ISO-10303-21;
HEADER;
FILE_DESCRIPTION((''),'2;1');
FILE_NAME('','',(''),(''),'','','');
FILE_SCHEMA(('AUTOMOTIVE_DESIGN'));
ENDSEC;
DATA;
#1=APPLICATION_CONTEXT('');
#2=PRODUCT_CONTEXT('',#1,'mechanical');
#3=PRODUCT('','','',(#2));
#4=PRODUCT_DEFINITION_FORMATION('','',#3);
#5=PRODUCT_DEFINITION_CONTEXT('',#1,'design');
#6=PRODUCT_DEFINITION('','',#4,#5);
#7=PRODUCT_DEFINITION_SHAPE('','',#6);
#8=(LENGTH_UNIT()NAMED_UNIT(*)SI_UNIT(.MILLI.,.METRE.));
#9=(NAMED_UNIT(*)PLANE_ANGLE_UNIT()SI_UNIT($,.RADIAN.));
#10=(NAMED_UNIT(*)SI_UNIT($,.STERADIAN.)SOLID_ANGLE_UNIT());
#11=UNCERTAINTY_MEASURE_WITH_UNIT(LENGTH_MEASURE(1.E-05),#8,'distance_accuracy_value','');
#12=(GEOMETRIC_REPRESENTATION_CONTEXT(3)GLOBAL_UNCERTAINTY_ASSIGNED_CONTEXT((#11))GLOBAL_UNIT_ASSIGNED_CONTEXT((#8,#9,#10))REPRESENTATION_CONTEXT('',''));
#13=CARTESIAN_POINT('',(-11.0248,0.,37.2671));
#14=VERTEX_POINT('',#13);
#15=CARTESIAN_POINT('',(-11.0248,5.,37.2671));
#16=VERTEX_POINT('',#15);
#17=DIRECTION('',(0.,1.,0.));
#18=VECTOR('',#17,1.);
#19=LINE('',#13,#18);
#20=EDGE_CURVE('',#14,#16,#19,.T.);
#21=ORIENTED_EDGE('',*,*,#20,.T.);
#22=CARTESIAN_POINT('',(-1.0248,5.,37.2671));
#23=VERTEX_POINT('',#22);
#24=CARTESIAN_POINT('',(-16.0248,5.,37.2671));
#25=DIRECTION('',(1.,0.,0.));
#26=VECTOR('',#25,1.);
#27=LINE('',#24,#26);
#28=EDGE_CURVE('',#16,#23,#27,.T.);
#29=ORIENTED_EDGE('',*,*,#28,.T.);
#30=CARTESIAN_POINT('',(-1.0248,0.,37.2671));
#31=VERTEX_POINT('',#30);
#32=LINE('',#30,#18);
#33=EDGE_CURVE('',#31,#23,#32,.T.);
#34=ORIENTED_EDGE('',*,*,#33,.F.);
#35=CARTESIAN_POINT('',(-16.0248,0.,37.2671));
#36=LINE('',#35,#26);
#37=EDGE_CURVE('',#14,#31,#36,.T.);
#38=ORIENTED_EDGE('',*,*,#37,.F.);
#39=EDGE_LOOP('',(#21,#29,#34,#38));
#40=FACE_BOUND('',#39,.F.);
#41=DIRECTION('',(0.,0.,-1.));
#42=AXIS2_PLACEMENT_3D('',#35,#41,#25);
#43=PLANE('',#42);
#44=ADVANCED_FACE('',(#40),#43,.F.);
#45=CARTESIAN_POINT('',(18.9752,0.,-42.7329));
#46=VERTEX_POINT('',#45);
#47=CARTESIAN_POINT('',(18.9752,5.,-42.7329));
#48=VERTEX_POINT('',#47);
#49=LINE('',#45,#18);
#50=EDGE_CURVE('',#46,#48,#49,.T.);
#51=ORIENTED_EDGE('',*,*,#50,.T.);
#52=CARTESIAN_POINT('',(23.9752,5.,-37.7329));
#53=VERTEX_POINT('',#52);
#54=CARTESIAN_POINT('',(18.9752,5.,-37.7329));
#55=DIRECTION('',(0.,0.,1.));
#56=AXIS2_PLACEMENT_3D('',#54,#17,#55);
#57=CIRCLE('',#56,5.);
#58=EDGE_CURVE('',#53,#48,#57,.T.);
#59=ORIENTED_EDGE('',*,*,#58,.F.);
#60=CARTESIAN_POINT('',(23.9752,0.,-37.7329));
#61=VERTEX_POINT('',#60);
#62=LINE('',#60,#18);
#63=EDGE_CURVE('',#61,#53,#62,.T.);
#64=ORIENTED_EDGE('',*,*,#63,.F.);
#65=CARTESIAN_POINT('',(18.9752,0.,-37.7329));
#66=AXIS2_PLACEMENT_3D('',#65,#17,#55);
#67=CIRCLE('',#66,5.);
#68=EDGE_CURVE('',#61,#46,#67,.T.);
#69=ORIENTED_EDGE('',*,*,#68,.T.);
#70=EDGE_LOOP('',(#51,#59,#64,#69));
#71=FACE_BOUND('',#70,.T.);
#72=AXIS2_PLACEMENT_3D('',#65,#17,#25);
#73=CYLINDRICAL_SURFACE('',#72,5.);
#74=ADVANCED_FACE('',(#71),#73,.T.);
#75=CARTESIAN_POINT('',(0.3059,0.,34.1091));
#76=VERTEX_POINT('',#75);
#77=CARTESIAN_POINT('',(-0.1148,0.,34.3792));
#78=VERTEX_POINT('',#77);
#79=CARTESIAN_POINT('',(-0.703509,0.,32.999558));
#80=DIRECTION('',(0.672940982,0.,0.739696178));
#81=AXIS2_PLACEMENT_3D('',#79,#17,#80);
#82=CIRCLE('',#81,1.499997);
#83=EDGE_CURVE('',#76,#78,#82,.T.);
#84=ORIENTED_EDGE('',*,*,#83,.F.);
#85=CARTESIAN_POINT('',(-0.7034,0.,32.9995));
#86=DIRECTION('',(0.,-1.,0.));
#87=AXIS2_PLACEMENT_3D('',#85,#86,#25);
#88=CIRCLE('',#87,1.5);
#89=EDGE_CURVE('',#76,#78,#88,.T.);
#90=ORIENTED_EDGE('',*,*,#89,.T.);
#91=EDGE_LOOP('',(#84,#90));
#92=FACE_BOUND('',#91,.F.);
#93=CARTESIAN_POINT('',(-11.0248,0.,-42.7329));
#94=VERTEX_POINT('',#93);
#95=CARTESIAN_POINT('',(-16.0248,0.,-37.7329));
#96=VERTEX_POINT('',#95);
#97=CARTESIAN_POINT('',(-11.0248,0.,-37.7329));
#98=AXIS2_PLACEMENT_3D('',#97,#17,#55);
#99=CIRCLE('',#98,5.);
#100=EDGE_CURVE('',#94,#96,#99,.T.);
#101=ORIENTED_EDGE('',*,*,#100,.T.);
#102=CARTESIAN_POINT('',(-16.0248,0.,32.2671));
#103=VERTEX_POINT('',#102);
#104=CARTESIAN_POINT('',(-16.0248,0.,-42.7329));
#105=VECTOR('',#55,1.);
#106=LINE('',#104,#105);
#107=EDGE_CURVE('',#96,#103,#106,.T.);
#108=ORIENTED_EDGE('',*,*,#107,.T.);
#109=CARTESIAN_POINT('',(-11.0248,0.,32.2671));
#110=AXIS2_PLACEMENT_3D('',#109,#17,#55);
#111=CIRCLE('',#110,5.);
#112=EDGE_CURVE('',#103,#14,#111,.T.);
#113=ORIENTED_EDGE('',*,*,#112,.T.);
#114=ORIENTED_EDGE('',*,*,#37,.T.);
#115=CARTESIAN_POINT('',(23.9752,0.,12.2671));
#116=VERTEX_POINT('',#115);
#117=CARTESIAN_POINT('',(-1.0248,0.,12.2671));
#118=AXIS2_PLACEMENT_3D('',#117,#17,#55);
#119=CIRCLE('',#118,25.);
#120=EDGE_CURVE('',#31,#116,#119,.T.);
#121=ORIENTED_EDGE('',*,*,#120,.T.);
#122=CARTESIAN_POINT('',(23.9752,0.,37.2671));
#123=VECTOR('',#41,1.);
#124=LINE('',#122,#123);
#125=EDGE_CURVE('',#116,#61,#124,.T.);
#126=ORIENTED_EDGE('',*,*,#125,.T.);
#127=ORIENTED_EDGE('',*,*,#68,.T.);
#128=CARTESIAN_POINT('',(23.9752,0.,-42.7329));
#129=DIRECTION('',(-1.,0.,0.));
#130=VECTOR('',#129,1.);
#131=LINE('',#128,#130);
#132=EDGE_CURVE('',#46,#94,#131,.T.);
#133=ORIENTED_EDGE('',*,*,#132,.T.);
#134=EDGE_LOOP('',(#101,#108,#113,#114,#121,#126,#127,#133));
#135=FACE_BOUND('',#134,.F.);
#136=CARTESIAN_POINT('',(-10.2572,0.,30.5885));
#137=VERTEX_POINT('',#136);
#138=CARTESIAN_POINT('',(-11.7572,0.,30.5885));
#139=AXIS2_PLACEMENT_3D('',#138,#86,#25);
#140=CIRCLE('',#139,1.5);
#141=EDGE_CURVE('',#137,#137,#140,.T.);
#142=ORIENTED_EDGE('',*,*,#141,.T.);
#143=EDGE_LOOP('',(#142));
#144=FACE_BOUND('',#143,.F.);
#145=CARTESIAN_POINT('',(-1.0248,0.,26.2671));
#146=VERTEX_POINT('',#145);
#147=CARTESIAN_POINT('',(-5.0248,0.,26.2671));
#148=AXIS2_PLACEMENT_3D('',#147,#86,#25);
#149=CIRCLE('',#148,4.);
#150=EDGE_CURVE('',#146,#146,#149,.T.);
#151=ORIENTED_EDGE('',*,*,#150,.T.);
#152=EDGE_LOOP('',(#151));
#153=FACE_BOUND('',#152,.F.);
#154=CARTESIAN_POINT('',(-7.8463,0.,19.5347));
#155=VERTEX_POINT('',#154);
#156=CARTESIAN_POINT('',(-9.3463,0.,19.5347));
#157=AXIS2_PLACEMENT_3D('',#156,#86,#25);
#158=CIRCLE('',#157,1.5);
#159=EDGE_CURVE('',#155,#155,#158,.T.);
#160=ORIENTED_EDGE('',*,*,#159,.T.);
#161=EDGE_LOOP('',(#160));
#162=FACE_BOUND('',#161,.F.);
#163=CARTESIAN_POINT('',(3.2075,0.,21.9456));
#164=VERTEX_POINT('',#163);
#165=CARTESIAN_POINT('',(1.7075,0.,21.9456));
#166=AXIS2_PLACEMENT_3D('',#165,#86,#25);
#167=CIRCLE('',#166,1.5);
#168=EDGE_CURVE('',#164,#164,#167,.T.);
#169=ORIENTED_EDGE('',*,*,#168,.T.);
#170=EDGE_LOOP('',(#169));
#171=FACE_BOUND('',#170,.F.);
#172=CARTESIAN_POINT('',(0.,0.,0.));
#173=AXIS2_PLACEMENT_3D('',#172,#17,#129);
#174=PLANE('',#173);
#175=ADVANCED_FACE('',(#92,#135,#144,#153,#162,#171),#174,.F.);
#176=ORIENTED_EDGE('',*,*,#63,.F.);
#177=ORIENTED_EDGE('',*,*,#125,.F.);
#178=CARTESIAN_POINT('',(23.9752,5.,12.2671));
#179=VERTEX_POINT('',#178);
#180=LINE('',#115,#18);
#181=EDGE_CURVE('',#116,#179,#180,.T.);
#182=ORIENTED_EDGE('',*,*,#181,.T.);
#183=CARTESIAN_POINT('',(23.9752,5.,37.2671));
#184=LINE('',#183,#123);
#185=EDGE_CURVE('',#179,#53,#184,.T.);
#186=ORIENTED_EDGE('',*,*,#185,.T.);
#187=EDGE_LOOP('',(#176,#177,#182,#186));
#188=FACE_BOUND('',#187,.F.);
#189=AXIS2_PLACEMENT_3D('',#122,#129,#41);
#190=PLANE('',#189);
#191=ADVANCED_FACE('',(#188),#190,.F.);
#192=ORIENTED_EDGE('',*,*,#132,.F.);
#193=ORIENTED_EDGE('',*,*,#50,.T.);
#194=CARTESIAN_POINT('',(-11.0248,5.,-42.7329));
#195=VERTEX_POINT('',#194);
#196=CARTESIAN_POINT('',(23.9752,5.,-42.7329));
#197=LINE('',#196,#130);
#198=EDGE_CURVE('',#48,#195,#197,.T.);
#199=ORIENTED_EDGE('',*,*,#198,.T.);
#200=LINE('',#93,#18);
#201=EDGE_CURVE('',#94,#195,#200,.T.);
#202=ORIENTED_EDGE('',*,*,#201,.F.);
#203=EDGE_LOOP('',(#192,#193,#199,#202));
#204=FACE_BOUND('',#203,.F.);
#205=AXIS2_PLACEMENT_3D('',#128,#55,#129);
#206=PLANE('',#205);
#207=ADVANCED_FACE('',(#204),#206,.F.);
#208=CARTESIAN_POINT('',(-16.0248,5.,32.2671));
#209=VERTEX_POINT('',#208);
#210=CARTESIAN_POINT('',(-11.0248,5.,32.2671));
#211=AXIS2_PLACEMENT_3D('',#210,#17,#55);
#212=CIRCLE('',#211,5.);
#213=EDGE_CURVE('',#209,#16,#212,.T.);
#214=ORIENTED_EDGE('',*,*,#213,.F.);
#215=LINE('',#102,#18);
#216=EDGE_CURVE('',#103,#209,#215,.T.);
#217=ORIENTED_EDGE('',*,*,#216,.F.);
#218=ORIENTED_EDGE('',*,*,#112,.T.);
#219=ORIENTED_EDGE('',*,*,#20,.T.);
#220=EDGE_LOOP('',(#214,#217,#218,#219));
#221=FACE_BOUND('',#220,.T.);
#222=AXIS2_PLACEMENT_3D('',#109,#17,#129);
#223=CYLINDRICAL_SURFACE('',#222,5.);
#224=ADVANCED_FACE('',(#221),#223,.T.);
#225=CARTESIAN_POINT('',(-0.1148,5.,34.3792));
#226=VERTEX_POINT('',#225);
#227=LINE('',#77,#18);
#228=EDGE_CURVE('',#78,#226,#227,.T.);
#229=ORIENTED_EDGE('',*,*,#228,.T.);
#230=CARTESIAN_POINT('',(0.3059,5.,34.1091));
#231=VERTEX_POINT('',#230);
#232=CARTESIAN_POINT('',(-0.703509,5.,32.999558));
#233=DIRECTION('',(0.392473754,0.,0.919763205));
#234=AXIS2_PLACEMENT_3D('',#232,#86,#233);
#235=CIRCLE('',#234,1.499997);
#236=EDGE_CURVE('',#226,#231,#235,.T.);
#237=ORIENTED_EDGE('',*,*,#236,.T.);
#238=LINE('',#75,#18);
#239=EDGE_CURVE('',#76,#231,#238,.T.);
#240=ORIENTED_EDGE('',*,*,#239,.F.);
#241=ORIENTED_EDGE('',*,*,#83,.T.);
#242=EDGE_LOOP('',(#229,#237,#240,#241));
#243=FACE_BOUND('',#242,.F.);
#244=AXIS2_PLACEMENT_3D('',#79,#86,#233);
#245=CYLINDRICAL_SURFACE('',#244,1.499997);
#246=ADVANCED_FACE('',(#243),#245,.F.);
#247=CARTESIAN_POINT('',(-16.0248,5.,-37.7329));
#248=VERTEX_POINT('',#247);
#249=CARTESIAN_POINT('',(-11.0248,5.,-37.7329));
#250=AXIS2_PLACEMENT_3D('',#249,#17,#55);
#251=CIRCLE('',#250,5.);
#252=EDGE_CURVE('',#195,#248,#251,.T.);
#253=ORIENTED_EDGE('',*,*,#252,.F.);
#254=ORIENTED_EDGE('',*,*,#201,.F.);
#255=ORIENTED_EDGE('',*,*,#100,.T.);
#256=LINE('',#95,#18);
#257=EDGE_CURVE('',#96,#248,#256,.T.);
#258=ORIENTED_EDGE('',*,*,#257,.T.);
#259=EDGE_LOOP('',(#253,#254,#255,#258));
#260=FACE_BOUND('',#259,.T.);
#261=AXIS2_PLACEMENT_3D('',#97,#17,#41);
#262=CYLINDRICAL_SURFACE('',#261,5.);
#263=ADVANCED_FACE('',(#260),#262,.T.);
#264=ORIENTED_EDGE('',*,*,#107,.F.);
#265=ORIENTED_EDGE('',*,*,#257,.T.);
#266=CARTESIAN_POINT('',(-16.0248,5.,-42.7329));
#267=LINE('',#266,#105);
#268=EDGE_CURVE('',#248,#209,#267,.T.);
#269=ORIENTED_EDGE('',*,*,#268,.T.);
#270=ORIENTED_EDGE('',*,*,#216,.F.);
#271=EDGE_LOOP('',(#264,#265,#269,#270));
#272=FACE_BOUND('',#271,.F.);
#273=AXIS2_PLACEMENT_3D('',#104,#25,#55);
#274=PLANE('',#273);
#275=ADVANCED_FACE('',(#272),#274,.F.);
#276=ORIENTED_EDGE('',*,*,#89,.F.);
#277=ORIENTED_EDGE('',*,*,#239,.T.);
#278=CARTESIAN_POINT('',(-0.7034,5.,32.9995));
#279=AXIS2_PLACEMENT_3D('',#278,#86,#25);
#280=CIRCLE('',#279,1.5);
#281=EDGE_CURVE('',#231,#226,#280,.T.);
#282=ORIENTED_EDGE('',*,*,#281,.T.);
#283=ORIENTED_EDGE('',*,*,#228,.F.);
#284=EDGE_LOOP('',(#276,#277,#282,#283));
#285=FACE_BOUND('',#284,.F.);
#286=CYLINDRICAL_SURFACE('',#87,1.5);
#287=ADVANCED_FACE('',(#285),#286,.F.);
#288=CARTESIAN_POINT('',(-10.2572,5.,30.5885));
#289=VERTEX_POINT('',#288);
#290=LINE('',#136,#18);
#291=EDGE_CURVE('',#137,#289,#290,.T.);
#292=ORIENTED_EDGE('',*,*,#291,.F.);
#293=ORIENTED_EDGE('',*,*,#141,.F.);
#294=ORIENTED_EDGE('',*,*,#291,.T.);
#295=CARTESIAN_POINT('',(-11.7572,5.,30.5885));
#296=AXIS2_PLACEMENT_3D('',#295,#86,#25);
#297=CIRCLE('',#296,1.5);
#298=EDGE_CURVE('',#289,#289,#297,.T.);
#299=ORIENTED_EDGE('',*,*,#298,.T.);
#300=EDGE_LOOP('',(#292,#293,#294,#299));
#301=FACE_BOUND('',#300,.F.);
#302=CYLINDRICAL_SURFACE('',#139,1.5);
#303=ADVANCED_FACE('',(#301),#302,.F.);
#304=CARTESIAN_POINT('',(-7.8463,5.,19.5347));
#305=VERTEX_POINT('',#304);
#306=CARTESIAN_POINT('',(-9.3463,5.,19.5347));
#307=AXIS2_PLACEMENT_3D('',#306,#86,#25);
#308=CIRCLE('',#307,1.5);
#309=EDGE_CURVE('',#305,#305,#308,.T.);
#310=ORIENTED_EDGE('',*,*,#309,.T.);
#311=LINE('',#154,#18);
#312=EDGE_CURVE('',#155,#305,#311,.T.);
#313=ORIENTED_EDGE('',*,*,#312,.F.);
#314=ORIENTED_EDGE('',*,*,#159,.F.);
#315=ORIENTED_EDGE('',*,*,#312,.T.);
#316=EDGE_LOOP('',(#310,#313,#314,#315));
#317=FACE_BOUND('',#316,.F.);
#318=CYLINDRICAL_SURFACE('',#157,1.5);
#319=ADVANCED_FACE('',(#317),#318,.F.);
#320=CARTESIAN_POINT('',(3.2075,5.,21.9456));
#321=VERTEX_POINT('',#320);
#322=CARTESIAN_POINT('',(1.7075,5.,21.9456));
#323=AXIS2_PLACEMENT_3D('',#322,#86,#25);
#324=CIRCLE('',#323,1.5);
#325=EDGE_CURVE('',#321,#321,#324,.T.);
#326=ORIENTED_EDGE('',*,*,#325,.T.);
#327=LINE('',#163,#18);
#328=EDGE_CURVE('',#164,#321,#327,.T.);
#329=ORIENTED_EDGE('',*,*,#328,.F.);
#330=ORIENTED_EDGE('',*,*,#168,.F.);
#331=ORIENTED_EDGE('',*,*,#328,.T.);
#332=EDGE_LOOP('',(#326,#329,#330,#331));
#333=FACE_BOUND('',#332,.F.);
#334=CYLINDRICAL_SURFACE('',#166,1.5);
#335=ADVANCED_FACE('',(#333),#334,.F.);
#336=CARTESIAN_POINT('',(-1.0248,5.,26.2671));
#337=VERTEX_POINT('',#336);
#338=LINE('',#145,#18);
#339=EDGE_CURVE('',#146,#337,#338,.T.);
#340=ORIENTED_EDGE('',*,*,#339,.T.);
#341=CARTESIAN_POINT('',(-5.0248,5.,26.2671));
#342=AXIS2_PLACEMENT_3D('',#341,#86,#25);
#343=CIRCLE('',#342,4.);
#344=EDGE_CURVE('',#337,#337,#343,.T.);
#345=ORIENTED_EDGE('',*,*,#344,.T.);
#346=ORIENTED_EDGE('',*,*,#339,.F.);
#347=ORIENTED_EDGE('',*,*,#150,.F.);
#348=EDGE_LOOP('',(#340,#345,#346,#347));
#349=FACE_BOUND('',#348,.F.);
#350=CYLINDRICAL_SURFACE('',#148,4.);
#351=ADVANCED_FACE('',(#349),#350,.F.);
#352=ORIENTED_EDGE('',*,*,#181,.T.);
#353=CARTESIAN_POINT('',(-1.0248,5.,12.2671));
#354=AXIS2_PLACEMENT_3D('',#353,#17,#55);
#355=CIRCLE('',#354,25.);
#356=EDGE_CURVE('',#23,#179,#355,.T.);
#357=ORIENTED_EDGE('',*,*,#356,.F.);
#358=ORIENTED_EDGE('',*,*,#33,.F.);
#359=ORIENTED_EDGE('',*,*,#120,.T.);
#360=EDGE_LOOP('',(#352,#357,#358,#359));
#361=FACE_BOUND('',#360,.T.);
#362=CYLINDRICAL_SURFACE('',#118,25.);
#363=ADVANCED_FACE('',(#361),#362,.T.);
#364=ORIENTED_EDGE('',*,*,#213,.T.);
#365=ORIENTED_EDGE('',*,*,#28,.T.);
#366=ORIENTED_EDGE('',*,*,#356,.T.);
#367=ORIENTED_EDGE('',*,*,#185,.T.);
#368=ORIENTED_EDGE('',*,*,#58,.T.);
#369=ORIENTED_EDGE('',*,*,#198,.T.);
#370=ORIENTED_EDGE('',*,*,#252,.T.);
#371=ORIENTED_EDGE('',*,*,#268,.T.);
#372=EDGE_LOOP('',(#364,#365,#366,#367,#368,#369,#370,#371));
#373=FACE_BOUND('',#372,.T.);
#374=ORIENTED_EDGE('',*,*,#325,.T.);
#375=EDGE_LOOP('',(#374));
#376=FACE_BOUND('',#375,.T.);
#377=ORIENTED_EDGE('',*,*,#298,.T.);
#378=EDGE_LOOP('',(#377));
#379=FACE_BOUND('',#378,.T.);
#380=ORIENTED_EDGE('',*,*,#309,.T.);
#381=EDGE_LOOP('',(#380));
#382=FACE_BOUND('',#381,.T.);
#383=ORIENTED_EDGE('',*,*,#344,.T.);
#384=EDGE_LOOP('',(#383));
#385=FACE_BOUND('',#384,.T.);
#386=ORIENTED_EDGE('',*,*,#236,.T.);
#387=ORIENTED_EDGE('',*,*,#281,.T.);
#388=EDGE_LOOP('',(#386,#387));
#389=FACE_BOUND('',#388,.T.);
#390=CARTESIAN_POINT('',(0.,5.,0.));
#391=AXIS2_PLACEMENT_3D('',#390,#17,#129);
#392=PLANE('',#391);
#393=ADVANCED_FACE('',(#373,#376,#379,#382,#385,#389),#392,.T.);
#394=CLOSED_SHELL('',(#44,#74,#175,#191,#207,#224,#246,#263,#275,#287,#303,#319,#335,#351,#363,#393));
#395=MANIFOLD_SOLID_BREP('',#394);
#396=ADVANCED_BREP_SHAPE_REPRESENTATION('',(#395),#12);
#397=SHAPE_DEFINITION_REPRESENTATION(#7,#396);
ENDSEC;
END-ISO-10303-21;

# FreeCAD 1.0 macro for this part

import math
import FreeCAD as App
import Part
import Sketcher
from FreeCAD import Vector
Q = App.Units.Quantity


def edges_at(feature, points):
    """Names of the edges that pass closest to the given points."""
    edges = feature.Shape.Edges
    near = lambda p: min(range(len(edges)), key=lambda i: edges[i].distToShape(Part.Vertex(*p))[0])
    return sorted({f"Edge{near(p) + 1}" for p in points})

doc = App.newDocument("Part")
body = doc.addObject("PartDesign::Body", "Body")

# Sketch on XZ plane
sketch1 = body.newObject("Sketcher::SketchObject", "Sketch")
sketch1.AttachmentSupport = (doc.getObject("XZ_Plane"), [""])
sketch1.MapMode = "FlatFace"
sketch1.addGeometry([
    Part.LineSegment(Vector(-16.0248, -42.7329, 0), Vector(-16.0248, 37.2671, 0)),
    Part.LineSegment(Vector(-16.0248, 37.2671, 0), Vector(23.9752, 37.2671, 0)),
    Part.LineSegment(Vector(23.9752, 37.2671, 0), Vector(23.9752, -42.7329, 0)),
    Part.LineSegment(Vector(23.9752, -42.7329, 0), Vector(-16.0248, -42.7329, 0)),
], False)
sketch1.addConstraint([
    Sketcher.Constraint("Coincident", 0, 2, 1, 1),
    Sketcher.Constraint("Coincident", 1, 2, 2, 1),
    Sketcher.Constraint("Coincident", 2, 2, 3, 1),
    Sketcher.Constraint("Coincident", 3, 2, 0, 1),
    Sketcher.Constraint("Vertical", 0),
    Sketcher.Constraint("Horizontal", 1),
    Sketcher.Constraint("Vertical", 2),
    Sketcher.Constraint("Horizontal", 3),
    Sketcher.Constraint("DistanceX", 1, 1, 1, 2, Q("40 mm")),
    Sketcher.Constraint("DistanceY", 0, 1, 0, 2, Q("80 mm")),
    Sketcher.Constraint("DistanceY", -1, 1, 0, 2, Q("37.267 mm")),
    Sketcher.Constraint("DistanceX", 0, 2, -1, 1, Q("16.0248 mm")),
])
pad1 = body.newObject("PartDesign::Pad", "Pad")
pad1.Profile = sketch1
pad1.Length = 5
pad1.Reversed = True

# Sketch on XZ plane
sketch2 = body.newObject("Sketcher::SketchObject", "Sketch001")
sketch2.AttachmentSupport = (doc.getObject("XZ_Plane"), [""])
sketch2.MapMode = "FlatFace"
sketch2.addGeometry([
    Part.ArcOfCircle(Part.Circle(Vector(-0.7034, 32.9995, 0), Vector(0, 0, 1), 1.5), math.radians(47.710123), math.radians(66.896203)),  # 0
    Part.ArcOfCircle(Part.Circle(Vector(-0.7034, 32.9995, 0), Vector(0, 0, 1), 1.5), math.radians(66.896203), math.radians(407.710123)),  # 1
    Part.Circle(Vector(1.7075, 21.9456, 0), Vector(0, 0, 1), 1.5),  # 2
    Part.Circle(Vector(-9.3463, 19.5347, 0), Vector(0, 0, 1), 1.5),  # 3
    Part.Circle(Vector(-11.7572, 30.5885, 0), Vector(0, 0, 1), 1.5),  # 4
    Part.Circle(Vector(-5.0248, 26.2671, 0), Vector(0, 0, 1), 4),  # 5
], False)
sketch2.addConstraint([
    Sketcher.Constraint("Tangent", 0, 1, 1, 2),
    Sketcher.Constraint("Coincident", 1, 1, 0, 2),
    Sketcher.Constraint("Equal", 1, 2),
    Sketcher.Constraint("Equal", 2, 3),
    Sketcher.Constraint("Equal", 3, 4),
    Sketcher.Constraint("Diameter", 2, Q("3 mm")),
    Sketcher.Constraint("Diameter", 5, Q("8 mm")),
    Sketcher.Constraint("DistanceY", 0, 1, 1, 1, Q("0.27 mm")),
    Sketcher.Constraint("DistanceX", 5, 3, 1, 1, Q("4.91 mm")),
    Sketcher.Constraint("DistanceY", -1, 1, 5, 3, Q("26.267 mm")),
    Sketcher.Constraint("DistanceX", -1, 1, 0, 1, Q("0.306 mm")),
    Sketcher.Constraint("DistanceX", 0, 3, 2, 3, Q("2.411 mm")),
    Sketcher.Constraint("DistanceY", 2, 3, 0, 3, Q("11.054 mm")),
    Sketcher.Constraint("DistanceY", 3, 3, 2, 3, Q("2.411 mm")),
    Sketcher.Constraint("DistanceX", 3, 3, 0, 3, Q("8.643 mm")),
    Sketcher.Constraint("DistanceX", 4, 3, 3, 3, Q("2.411 mm")),
    Sketcher.Constraint("DistanceY", 4, 3, 0, 3, Q("2.411 mm")),
    Sketcher.Constraint("DistanceY", 5, 3, 0, 1, Q("7.842 mm")),
    Sketcher.Constraint("DistanceX", 0, 3, -1, 1, Q("0.7034 mm")),
])
pocket1 = body.newObject("PartDesign::Pocket", "Pocket")
pocket1.Profile = sketch2
pocket1.Type = "ThroughAll"
doc.recompute()

fillet = body.newObject("PartDesign::Fillet", "Fillet")
fillet.Base = (pocket1, edges_at(pocket1, [(23.975, 2.5, 37.267)]))
fillet.Radius = 25
doc.recompute()

fillet2 = body.newObject("PartDesign::Fillet", "Fillet001")
fillet2.Base = (fillet, edges_at(fillet, [(23.975, 2.5, -42.733)]))
fillet2.Radius = 5
doc.recompute()

fillet3 = body.newObject("PartDesign::Fillet", "Fillet002")
fillet3.Base = (fillet2, edges_at(fillet2, [(-16.025, 2.5, -42.733)]))
fillet3.Radius = 5
doc.recompute()

fillet4 = body.newObject("PartDesign::Fillet", "Fillet003")
fillet4.Base = (fillet3, edges_at(fillet3, [(-16.025, 2.5, 37.267)]))
fillet4.Radius = 5

doc.recompute()
